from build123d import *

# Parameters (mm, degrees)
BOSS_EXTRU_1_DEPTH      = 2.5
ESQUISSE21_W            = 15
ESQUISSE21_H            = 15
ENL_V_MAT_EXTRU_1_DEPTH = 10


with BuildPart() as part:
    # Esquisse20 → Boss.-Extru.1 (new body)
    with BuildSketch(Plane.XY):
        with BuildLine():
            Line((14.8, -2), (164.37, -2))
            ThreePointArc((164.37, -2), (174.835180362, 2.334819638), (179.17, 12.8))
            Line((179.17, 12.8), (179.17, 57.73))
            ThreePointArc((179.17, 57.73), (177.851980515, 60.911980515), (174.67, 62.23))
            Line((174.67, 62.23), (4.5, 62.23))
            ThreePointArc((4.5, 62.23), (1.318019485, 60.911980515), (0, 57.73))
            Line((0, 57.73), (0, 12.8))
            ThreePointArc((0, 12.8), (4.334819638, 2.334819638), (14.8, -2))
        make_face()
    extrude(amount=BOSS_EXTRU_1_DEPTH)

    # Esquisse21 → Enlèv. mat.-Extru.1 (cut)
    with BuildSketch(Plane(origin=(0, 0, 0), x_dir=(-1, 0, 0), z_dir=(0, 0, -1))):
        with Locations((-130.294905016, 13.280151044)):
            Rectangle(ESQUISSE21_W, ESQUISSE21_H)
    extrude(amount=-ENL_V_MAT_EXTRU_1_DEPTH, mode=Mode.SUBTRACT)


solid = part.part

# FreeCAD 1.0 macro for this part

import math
import FreeCAD as App
import Part
import Sketcher
Q = App.Units.Quantity

doc = App.newDocument("Part")
params = doc.addObject("Spreadsheet::Sheet", "Params")
for row, (alias, value) in enumerate([
    ("sketch1_radius", "14.8 mm"),
    ("sketch1_radius2", "4.5 mm"),
    ("sketch1_width", "149.57 mm"),
    ("sketch1_height", "44.93 mm"),
    ("pad1_length", "2.5 mm"),
    ("sketch2_width", "15 mm"),
    ("pocket1_length", "10 mm"),
], start=1):
    params.set(f"A{row}", alias)
    params.set(f"B{row}", "=" + value)
    params.setAlias(f"B{row}", alias)

body = doc.addObject("PartDesign::Body", "Body")

# Sketch on XY plane
sketch1 = body.newObject("Sketcher::SketchObject", "Sketch")
sketch1.AttachmentSupport = (doc.getObject("XY_Plane"), [""])
sketch1.MapMode = "FlatFace"
sketch1.addGeometry(Part.LineSegment(App.Vector(14.8, -2, 0), App.Vector(164.4, -2, 0)), False)
sketch1.addGeometry(Part.ArcOfCircle(Part.Circle(App.Vector(164.4, 12.8, 0), App.Vector(0, 0, 1), 14.8), math.radians(-90), math.radians(0)), False)
sketch1.addGeometry(Part.LineSegment(App.Vector(179.2, 12.8, 0), App.Vector(179.2, 57.7, 0)), False)
sketch1.addGeometry(Part.ArcOfCircle(Part.Circle(App.Vector(174.7, 57.7, 0), App.Vector(0, 0, 1), 4.5), math.radians(0), math.radians(90)), False)
sketch1.addGeometry(Part.LineSegment(App.Vector(174.7, 62.2, 0), App.Vector(4.5, 62.2, 0)), False)
sketch1.addGeometry(Part.ArcOfCircle(Part.Circle(App.Vector(4.5, 57.7, 0), App.Vector(0, 0, 1), 4.5), math.radians(90), math.radians(180)), False)
sketch1.addGeometry(Part.LineSegment(App.Vector(0, 57.7, 0), App.Vector(0, 12.8, 0)), False)
sketch1.addGeometry(Part.ArcOfCircle(Part.Circle(App.Vector(14.8, 12.8, 0), App.Vector(0, 0, 1), 14.8), math.radians(180), math.radians(270)), False)
sketch1.addConstraint(Sketcher.Constraint("Tangent", 0, 2, 1, 1))
sketch1.addConstraint(Sketcher.Constraint("Tangent", 1, 2, 2, 1))
sketch1.addConstraint(Sketcher.Constraint("Tangent", 2, 2, 3, 1))
sketch1.addConstraint(Sketcher.Constraint("Tangent", 3, 2, 4, 1))
sketch1.addConstraint(Sketcher.Constraint("Tangent", 4, 2, 5, 1))
sketch1.addConstraint(Sketcher.Constraint("Tangent", 5, 2, 6, 1))
sketch1.addConstraint(Sketcher.Constraint("Tangent", 6, 2, 7, 1))
sketch1.addConstraint(Sketcher.Constraint("Tangent", 7, 2, 0, 1))
sketch1.addConstraint(Sketcher.Constraint("Horizontal", 0))
sketch1.addConstraint(Sketcher.Constraint("Vertical", 2))
sketch1.addConstraint(Sketcher.Constraint("Horizontal", 4))
sketch1.addConstraint(Sketcher.Constraint("Vertical", 6))
sketch1.addConstraint(Sketcher.Constraint("Equal", 3, 5))
sketch1.addConstraint(Sketcher.Constraint("Equal", 1, 7))
sketch1.addConstraint(Sketcher.Constraint("PointOnObject", 5, 2, -2))
sketch1.addConstraint(Sketcher.Constraint("Radius", 1, Q("14.8 mm")))
sketch1.addConstraint(Sketcher.Constraint("Radius", 3, Q("4.5 mm")))
sketch1.addConstraint(Sketcher.Constraint("DistanceY", 0, 2, -1, 1, Q("2 mm")))
sketch1.addConstraint(Sketcher.Constraint("DistanceX", 0, 1, 0, 2, Q("149.57 mm")))
sketch1.addConstraint(Sketcher.Constraint("DistanceY", 2, 1, 2, 2, Q("44.93 mm")))
sketch1.setExpression("Constraints[15]", "Params.sketch1_radius")
sketch1.setExpression("Constraints[16]", "Params.sketch1_radius2")
sketch1.setExpression("Constraints[18]", "Params.sketch1_width")
sketch1.setExpression("Constraints[19]", "Params.sketch1_height")
pad1 = body.newObject("PartDesign::Pad", "Pad")
pad1.Profile = sketch1
pad1.setExpression("Length", "Params.pad1_length")

# Sketch on XY plane
sketch2 = body.newObject("Sketcher::SketchObject", "Sketch001")
sketch2.AttachmentSupport = (doc.getObject("XY_Plane"), [""])
sketch2.MapMode = "FlatFace"
sketch2.addGeometry(Part.LineSegment(App.Vector(138, 21, 0), App.Vector(138, 6, 0)), False)
sketch2.addGeometry(Part.LineSegment(App.Vector(138, 6, 0), App.Vector(123, 6, 0)), False)
sketch2.addGeometry(Part.LineSegment(App.Vector(123, 6, 0), App.Vector(123, 21, 0)), False)
sketch2.addGeometry(Part.LineSegment(App.Vector(123, 21, 0), App.Vector(138, 21, 0)), False)
sketch2.addConstraint(Sketcher.Constraint("Coincident", 0, 2, 1, 1))
sketch2.addConstraint(Sketcher.Constraint("Coincident", 1, 2, 2, 1))
sketch2.addConstraint(Sketcher.Constraint("Coincident", 2, 2, 3, 1))
sketch2.addConstraint(Sketcher.Constraint("Coincident", 3, 2, 0, 1))
sketch2.addConstraint(Sketcher.Constraint("Vertical", 0))
sketch2.addConstraint(Sketcher.Constraint("Horizontal", 1))
sketch2.addConstraint(Sketcher.Constraint("Vertical", 2))
sketch2.addConstraint(Sketcher.Constraint("Horizontal", 3))
sketch2.addConstraint(Sketcher.Constraint("Equal", 3, 0))
sketch2.addConstraint(Sketcher.Constraint("DistanceX", 1, 2, 1, 1, Q("15 mm")))
sketch2.addConstraint(Sketcher.Constraint("DistanceY", -1, 1, 0, 2, Q("5.780151 mm")))
sketch2.addConstraint(Sketcher.Constraint("DistanceX", -1, 1, 0, 2, Q("137.794905 mm")))
sketch2.setExpression("Constraints[9]", "Params.sketch2_width")
pocket1 = body.newObject("PartDesign::Pocket", "Pocket")
pocket1.Profile = sketch2
pocket1.setExpression("Length", "Params.pocket1_length")
pocket1.Reversed = True

doc.recompute()
